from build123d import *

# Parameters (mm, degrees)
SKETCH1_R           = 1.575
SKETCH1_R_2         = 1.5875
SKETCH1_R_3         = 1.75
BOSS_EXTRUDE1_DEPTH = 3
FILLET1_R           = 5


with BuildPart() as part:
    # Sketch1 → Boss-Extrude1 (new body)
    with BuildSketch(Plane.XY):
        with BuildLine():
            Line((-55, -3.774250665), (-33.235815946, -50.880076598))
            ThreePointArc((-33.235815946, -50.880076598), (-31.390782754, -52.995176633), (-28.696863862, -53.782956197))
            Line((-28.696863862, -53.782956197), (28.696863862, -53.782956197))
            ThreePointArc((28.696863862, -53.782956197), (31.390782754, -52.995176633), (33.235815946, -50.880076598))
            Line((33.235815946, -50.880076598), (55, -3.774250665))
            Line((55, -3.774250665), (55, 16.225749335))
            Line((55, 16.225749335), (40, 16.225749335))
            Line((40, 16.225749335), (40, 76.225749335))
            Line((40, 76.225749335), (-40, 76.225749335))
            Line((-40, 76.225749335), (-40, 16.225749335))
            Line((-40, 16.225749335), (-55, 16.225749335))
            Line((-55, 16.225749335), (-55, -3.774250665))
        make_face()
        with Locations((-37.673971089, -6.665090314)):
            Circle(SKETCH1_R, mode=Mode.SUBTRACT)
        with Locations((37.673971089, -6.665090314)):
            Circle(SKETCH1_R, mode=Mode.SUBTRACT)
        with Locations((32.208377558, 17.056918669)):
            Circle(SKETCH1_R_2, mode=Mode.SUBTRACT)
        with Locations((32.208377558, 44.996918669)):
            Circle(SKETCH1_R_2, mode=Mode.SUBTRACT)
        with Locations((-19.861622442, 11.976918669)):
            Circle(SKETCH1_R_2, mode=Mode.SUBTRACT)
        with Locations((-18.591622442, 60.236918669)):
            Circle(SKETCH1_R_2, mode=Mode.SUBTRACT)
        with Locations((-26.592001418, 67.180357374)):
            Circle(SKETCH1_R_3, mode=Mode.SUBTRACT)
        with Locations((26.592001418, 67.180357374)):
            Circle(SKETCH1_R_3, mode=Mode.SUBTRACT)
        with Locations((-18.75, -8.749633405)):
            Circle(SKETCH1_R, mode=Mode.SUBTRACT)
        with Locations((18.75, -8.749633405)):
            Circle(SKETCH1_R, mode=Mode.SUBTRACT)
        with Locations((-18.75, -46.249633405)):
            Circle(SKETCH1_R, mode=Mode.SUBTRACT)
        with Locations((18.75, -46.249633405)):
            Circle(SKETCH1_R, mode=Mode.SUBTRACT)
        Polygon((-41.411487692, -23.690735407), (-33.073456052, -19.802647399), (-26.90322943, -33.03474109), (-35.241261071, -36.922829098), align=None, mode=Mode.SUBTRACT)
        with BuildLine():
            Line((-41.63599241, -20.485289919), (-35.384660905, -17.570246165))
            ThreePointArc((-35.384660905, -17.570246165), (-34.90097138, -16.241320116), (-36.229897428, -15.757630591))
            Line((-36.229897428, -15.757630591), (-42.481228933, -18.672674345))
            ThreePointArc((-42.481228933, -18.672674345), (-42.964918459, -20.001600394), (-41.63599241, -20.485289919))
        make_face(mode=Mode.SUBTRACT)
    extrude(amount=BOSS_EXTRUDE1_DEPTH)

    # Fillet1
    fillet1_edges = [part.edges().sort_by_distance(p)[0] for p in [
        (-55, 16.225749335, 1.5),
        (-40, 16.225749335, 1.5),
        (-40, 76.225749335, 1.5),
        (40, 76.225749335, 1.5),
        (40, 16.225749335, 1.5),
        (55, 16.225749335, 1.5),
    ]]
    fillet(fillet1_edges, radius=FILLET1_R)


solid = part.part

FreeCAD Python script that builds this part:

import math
import FreeCAD as App
import Part
import Sketcher

V = App.Vector
Q = App.Units.Quantity


def edges_at(feature, points):
    """Names of the edges that pass closest to the given points."""
    edges = feature.Shape.Edges
    near = lambda p: min(range(len(edges)), key=lambda i: edges[i].distToShape(Part.Vertex(*p))[0])
    return sorted({f"Edge{near(p) + 1}" for p in points})


def add_polygon(sketch, points):
    """Adds a closed chain of lines whose ends are joined by coincident constraints."""
    first, n = sketch.GeometryCount, len(points)
    for a, b in zip(points, points[1:] + points[:1]):
        sketch.addGeometry(Part.LineSegment(App.Vector(*a, 0), App.Vector(*b, 0)), False)
    for i in range(n):
        sketch.addConstraint(Sketcher.Constraint("Coincident", first + i, 2, first + (i + 1) % n, 1))

doc = App.newDocument("Part")
body = doc.addObject("PartDesign::Body", "Body")

# Sketch on XY plane
sketch1 = body.newObject("Sketcher::SketchObject", "Sketch")
sketch1.AttachmentSupport = (doc.getObject("XY_Plane"), [""])
sketch1.MapMode = "FlatFace"
sketch1.addGeometry(Part.LineSegment(V(-55, -3.774251, 0), V(-33.235816, -50.880077, 0)), False)  # 0
sketch1.addGeometry(Part.ArcOfCircle(Part.Circle(V(-28.696864, -48.782956, 0), V(0, 0, 1), 5), math.radians(-155.201767), math.radians(-90)), False)  # 1
sketch1.addGeometry(Part.LineSegment(V(-28.696864, -53.782956, 0), V(28.696864, -53.782956, 0)), False)  # 2
sketch1.addGeometry(Part.ArcOfCircle(Part.Circle(V(28.696864, -48.782956, 0), V(0, 0, 1), 5), math.radians(-90), math.radians(-24.798233)), False)  # 3
sketch1.addGeometry(Part.LineSegment(V(33.235816, -50.880077, 0), V(55, -3.774251, 0)), False)  # 4
sketch1.addGeometry(Part.LineSegment(V(55, -3.774251, 0), V(55, 16.225749, 0)), False)  # 5
sketch1.addGeometry(Part.LineSegment(V(55, 16.225749, 0), V(40, 16.225749, 0)), False)  # 6
sketch1.addGeometry(Part.LineSegment(V(40, 16.225749, 0), V(40, 76.225749, 0)), False)  # 7
sketch1.addGeometry(Part.LineSegment(V(40, 76.225749, 0), V(-40, 76.225749, 0)), False)  # 8
sketch1.addGeometry(Part.LineSegment(V(-40, 76.225749, 0), V(-40, 16.225749, 0)), False)  # 9
sketch1.addGeometry(Part.LineSegment(V(-40, 16.225749, 0), V(-55, 16.225749, 0)), False)  # 10
sketch1.addGeometry(Part.LineSegment(V(-55, 16.225749, 0), V(-55, -3.774251, 0)), False)  # 11
add_polygon(sketch1, [(-35.241261, -36.922829), (-41.411488, -23.690735), (-33.073456, -19.802647), (-26.903229, -33.034741)])  # lines 12-15
sketch1.addGeometry(Part.Circle(V(-18.75, -46.249633, 0), V(0, 0, 1), 1.575), False)  # 16
sketch1.addGeometry(Part.LineSegment(V(-35.384661, -17.570246, 0), V(-41.635992, -20.48529, 0)), False)  # 17
sketch1.addGeometry(Part.ArcOfCircle(Part.Circle(V(-42.058611, -19.578982, 0), V(0, 0, 1), 1), math.radians(115), math.radians(295)), False)  # 18
sketch1.addGeometry(Part.LineSegment(V(-42.481229, -18.672674, 0), V(-36.229897, -15.757631, 0)), False)  # 19
sketch1.addGeometry(Part.ArcOfCircle(Part.Circle(V(-35.807279, -16.663938, 0), V(0, 0, 1), 1), math.radians(-65), math.radians(115)), False)  # 20
sketch1.addGeometry(Part.Circle(V(-37.673971, -6.66509, 0), V(0, 0, 1), 1.575), False)  # 21
sketch1.addGeometry(Part.Circle(V(-18.75, -8.749633, 0), V(0, 0, 1), 1.575), False)  # 22
sketch1.addGeometry(Part.Circle(V(18.75, -46.249633, 0), V(0, 0, 1), 1.575), False)  # 23
sketch1.addGeometry(Part.Circle(V(18.75, -8.749633, 0), V(0, 0, 1), 1.575), False)  # 24
sketch1.addGeometry(Part.Circle(V(37.673971, -6.66509, 0), V(0, 0, 1), 1.575), False)  # 25
sketch1.addGeometry(Part.Circle(V(-19.861622, 11.976919, 0), V(0, 0, 1), 1.5875), False)  # 26
sketch1.addGeometry(Part.Circle(V(-26.592001, 67.180357, 0), V(0, 0, 1), 1.75), False)  # 27
sketch1.addGeometry(Part.Circle(V(-18.591622, 60.236919, 0), V(0, 0, 1), 1.5875), False)  # 28
sketch1.addGeometry(Part.Circle(V(32.208378, 17.056919, 0), V(0, 0, 1), 1.5875), False)  # 29
sketch1.addGeometry(Part.Circle(V(32.208378, 44.996919, 0), V(0, 0, 1), 1.5875), False)  # 30
sketch1.addGeometry(Part.Circle(V(26.592001, 67.180357, 0), V(0, 0, 1), 1.75), False)  # 31
sketch1.addConstraint([
    Sketcher.Constraint("Tangent", 0, 2, 1, 1),
    Sketcher.Constraint("Tangent", 1, 2, 2, 1),
    Sketcher.Constraint("Tangent", 2, 2, 3, 1),
    Sketcher.Constraint("Tangent", 3, 2, 4, 1),
    Sketcher.Constraint("Coincident", 4, 2, 5, 1),
    Sketcher.Constraint("Coincident", 5, 2, 6, 1),
    Sketcher.Constraint("Coincident", 6, 2, 7, 1),
    Sketcher.Constraint("Coincident", 7, 2, 8, 1),
    Sketcher.Constraint("Coincident", 8, 2, 9, 1),
    Sketcher.Constraint("Coincident", 9, 2, 10, 1),
    Sketcher.Constraint("Coincident", 10, 2, 11, 1),
    Sketcher.Constraint("Coincident", 11, 2, 0, 1),
    Sketcher.Constraint("Tangent", 17, 2, 18, 2),
    Sketcher.Constraint("Tangent", 18, 1, 19, 1),
    Sketcher.Constraint("Tangent", 19, 2, 20, 2),
    Sketcher.Constraint("Tangent", 20, 1, 17, 1),
    Sketcher.Constraint("Horizontal", 2),
    Sketcher.Constraint("Vertical", 5),
    Sketcher.Constraint("Horizontal", 6),
    Sketcher.Constraint("Vertical", 7),
    Sketcher.Constraint("Horizontal", 8),
    Sketcher.Constraint("Vertical", 9),
    Sketcher.Constraint("Horizontal", 10),
    Sketcher.Constraint("Vertical", 11),
    Sketcher.Constraint("Equal", 1, 3),
    Sketcher.Constraint("Equal", 18, 20),
    Sketcher.Constraint("Equal", 16, 21),
    Sketcher.Constraint("Equal", 21, 22),
    Sketcher.Constraint("Equal", 22, 23),
    Sketcher.Constraint("Equal", 23, 24),
    Sketcher.Constraint("Equal", 24, 25),
    Sketcher.Constraint("Equal", 26, 28),
    Sketcher.Constraint("Equal", 28, 29),
    Sketcher.Constraint("Equal", 29, 30),
    Sketcher.Constraint("Equal", 27, 31),
    Sketcher.Constraint("Symmetric", 16, 3, 23, 3, -2),
    Sketcher.Constraint("Symmetric", 22, 3, 24, 3, -2),
    Sketcher.Constraint("Symmetric", 21, 3, 25, 3, -2),
    Sketcher.Constraint("Symmetric", 27, 3, 31, 3, -2),
    Sketcher.Constraint("Symmetric", 0, 2, 3, 2, -2),
    Sketcher.Constraint("Symmetric", 6, 2, 9, 2, -2),
    Sketcher.Constraint("Perpendicular", 12, 13),
    Sketcher.Constraint("Perpendicular", 13, 14),
    Sketcher.Constraint("Perpendicular", 14, 15),
    Sketcher.Constraint("Parallel", 15, 17),
    Sketcher.Constraint("Horizontal", 4, 2, 11, 2),
    Sketcher.Constraint("Vertical", 16, 3, 22, 3),
    Sketcher.Constraint("Vertical", 29, 3, 30, 3),
    Sketcher.Constraint("Radius", 1, Q("5 mm")),
    Sketcher.Constraint("Radius", 18, Q("1 mm")),
    Sketcher.Constraint("Diameter", 27, Q("3.5 mm")),
    Sketcher.Constraint("Diameter", 16, Q("3.15 mm")),
    Sketcher.Constraint("DistanceX", 6, 2, 6, 1, Q("15 mm")),
    Sketcher.Constraint("DistanceX", 8, 2, 8, 1, Q("80 mm")),
    Sketcher.Constraint("DistanceY", 5, 1, 5, 2, Q("20 mm")),
    Sketcher.Constraint("DistanceY", 7, 1, 7, 2, Q("60 mm")),
    Sketcher.Constraint("Angle", 12, Q("115 deg")),
    Sketcher.Constraint("Diameter", 26, Q("3.175 mm")),
    Sketcher.Constraint("Distance", 12, Q("14.6 mm")),
    Sketcher.Constraint("Distance", 13, Q("9.2 mm")),
    Sketcher.Constraint("DistanceY", 16, 3, 22, 3, Q("37.5 mm")),
    Sketcher.Constraint("DistanceX", 16, 3, 23, 3, Q("37.5 mm")),
    Sketcher.Constraint("DistanceX", 28, 3, 30, 3, Q("50.8 mm")),
    Sketcher.Constraint("DistanceX", 26, 3, 28, 3, Q("1.27 mm")),
    Sketcher.Constraint("DistanceY", 26, 3, 28, 3, Q("48.26 mm")),
    Sketcher.Constraint("DistanceY", 26, 3, 29, 3, Q("5.08 mm")),
    Sketcher.Constraint("DistanceY", 29, 3, 30, 3, Q("27.94 mm")),
    Sketcher.Constraint("DistanceX", 27, 3, -1, 1, Q("26.592001 mm")),
    Sketcher.Constraint("DistanceY", 18, 3, 26, 3, Q("31.555901 mm")),
    Sketcher.Constraint("DistanceY", 17, 2, 21, 3, Q("13.8202 mm")),
    Sketcher.Constraint("DistanceY", 13, 2, 20, 1, Q("2.232401 mm")),
    Sketcher.Constraint("Distance", 0, Q("51.89064 mm")),
    Sketcher.Constraint("Distance", 17, Q("6.897581 mm")),
    Sketcher.Constraint("DistanceX", 2, 1, 2, 2, Q("57.393728 mm")),
    Sketcher.Constraint("DistanceX", 18, 3, -1, 1, Q("42.058611 mm")),
    Sketcher.Constraint("DistanceY", 20, 3, -1, 1, Q("16.663938 mm")),
    Sketcher.Constraint("DistanceX", 21, 3, -1, 1, Q("37.673971 mm")),
    Sketcher.Constraint("DistanceY", 4, 2, -1, 1, Q("3.774251 mm")),
    Sketcher.Constraint("DistanceX", 14, 2, -1, 1, Q("26.903229 mm")),
    Sketcher.Constraint("DistanceY", 16, 3, 18, 3, Q("26.670651 mm")),
    Sketcher.Constraint("DistanceX", 21, 3, 26, 3, Q("17.812349 mm")),
    Sketcher.Constraint("DistanceY", 26, 3, 27, 3, Q("55.203439 mm")),
])
pad1 = body.newObject("PartDesign::Pad", "Pad")
pad1.Profile = sketch1
pad1.Length = 3
doc.recompute()

fillet = body.newObject("PartDesign::Fillet", "Fillet")
fillet.Base = (pad1, edges_at(pad1, [
    (-55, 16.226, 1.5),
    (-40, 16.226, 1.5),
    (-40, 76.226, 1.5),
    (40, 76.226, 1.5),
    (40, 16.226, 1.5),
    (55, 16.226, 1.5),
]))
fillet.Radius = 5

doc.recompute()
